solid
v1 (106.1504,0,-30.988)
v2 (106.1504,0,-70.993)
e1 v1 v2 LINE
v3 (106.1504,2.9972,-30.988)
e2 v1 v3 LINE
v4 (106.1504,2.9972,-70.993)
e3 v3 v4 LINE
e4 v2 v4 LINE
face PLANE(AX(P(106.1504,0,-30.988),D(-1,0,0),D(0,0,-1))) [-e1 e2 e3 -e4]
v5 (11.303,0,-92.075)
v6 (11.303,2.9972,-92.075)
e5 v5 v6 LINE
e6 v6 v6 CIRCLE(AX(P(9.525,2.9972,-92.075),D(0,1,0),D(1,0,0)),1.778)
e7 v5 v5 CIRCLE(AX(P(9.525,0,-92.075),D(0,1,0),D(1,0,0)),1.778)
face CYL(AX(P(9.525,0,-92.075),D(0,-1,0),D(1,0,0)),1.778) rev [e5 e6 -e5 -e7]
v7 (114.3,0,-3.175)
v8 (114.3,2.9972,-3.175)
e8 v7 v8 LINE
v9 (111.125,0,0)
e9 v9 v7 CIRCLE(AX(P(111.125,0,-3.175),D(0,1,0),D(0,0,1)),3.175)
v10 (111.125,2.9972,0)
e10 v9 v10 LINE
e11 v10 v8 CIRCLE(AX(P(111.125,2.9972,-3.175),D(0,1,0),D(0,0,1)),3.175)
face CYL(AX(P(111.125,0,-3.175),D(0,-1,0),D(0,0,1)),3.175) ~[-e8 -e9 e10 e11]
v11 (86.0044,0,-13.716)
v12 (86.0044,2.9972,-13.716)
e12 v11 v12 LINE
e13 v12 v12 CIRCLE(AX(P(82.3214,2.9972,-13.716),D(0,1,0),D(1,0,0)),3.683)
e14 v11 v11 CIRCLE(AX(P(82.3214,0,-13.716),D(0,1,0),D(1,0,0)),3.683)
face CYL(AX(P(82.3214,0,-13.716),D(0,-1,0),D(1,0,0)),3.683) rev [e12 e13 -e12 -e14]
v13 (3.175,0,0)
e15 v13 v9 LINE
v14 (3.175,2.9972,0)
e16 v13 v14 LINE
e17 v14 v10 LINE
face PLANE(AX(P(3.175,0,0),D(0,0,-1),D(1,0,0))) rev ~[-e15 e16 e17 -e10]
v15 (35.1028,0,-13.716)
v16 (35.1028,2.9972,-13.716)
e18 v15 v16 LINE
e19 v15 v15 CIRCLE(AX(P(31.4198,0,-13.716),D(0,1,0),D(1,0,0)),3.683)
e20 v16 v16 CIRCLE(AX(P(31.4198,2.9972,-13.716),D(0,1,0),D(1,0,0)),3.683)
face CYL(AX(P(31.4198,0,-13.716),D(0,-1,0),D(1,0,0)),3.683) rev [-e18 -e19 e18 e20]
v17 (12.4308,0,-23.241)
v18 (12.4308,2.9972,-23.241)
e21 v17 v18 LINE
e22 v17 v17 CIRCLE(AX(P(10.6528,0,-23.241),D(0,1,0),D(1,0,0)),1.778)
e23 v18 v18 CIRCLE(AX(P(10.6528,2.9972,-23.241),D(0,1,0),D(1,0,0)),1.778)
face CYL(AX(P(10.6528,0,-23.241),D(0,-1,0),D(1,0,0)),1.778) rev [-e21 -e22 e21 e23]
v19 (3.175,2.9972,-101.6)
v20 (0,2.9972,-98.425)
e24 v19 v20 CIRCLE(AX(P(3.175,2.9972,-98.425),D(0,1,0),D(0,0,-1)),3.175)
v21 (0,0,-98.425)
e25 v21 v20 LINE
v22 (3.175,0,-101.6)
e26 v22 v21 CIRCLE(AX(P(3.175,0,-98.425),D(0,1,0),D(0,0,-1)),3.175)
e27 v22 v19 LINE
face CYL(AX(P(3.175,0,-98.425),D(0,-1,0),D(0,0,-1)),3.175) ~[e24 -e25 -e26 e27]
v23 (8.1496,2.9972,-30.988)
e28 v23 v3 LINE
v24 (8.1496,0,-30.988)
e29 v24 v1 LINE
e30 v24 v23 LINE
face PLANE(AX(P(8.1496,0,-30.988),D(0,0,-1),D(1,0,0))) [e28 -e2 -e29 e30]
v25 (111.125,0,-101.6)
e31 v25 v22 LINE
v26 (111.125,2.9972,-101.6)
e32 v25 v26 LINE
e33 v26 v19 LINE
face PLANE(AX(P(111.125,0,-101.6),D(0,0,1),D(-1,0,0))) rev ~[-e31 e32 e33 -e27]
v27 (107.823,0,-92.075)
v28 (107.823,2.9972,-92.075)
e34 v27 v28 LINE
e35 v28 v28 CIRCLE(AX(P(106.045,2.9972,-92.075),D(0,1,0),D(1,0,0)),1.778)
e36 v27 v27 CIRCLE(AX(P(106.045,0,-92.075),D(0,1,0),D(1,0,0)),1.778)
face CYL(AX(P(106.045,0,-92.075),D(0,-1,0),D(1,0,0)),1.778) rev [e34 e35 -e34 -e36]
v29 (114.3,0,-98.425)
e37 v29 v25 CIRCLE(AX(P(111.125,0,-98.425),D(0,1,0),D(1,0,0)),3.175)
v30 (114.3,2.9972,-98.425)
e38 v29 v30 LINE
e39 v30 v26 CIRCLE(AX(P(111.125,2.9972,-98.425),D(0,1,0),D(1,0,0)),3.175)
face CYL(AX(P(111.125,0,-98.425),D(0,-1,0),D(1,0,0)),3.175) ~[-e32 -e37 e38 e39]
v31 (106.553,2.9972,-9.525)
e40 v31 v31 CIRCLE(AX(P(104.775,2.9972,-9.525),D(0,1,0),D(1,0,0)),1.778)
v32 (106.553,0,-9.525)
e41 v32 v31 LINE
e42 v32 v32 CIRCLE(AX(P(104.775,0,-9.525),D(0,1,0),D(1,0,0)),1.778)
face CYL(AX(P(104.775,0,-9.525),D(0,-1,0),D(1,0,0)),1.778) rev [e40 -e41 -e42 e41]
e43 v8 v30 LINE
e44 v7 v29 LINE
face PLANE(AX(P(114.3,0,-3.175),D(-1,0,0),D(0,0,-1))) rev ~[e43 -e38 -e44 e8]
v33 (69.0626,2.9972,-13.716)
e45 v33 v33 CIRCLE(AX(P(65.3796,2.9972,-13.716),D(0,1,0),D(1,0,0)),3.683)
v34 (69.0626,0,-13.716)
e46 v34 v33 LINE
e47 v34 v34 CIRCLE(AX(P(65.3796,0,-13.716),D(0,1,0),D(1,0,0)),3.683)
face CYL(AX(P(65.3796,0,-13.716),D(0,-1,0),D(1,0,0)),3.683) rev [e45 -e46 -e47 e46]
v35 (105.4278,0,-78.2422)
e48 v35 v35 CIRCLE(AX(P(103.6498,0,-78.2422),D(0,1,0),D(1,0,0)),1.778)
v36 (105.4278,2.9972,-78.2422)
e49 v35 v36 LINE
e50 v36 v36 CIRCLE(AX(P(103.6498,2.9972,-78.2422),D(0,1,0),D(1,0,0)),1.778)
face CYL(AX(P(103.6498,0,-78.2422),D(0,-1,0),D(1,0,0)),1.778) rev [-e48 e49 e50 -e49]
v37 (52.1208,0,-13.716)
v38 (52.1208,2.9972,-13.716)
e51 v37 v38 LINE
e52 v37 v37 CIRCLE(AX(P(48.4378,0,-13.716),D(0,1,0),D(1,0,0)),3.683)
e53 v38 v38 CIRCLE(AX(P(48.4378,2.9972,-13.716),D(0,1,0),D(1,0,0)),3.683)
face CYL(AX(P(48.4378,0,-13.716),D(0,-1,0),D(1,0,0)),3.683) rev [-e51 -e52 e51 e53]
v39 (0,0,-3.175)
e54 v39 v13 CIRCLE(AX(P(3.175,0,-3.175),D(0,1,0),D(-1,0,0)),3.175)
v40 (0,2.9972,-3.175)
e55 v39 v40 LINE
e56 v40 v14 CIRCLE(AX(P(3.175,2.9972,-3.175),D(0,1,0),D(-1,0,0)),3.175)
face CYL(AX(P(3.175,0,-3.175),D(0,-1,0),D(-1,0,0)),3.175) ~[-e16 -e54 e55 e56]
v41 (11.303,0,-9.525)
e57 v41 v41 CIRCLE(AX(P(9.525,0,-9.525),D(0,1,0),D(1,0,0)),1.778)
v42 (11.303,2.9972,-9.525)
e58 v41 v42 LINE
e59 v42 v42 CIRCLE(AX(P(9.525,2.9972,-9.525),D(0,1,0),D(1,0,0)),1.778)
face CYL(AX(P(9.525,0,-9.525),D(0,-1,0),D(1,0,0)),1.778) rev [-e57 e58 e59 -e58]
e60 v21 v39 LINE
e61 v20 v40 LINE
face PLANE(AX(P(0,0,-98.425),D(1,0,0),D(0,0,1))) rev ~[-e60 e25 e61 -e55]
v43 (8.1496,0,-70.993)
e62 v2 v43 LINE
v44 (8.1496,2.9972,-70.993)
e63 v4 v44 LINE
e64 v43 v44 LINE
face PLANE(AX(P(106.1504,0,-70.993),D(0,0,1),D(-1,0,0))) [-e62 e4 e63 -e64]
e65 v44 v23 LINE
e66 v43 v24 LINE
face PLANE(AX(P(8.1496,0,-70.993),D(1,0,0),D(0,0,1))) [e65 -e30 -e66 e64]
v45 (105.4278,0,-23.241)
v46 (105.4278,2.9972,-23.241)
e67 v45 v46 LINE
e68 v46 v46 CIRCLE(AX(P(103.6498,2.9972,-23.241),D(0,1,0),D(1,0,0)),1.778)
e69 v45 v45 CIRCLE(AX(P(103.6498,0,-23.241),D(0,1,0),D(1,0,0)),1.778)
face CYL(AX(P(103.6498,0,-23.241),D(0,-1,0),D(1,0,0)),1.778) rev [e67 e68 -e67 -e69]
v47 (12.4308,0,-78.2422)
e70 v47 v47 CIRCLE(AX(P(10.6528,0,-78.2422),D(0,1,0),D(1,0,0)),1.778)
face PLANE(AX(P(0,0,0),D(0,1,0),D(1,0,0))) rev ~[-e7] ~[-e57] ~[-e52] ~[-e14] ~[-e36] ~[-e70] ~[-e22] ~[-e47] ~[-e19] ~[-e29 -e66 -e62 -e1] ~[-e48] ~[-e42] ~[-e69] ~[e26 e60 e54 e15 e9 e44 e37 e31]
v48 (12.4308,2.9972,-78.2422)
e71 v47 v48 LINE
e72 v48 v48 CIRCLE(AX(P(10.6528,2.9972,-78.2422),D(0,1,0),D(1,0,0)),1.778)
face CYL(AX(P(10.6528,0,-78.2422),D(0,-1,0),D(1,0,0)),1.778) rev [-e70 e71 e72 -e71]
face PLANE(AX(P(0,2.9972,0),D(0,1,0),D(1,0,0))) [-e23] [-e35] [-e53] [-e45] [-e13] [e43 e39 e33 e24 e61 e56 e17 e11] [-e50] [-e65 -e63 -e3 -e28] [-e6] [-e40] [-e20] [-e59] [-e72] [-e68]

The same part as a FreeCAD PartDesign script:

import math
import FreeCAD as App
import Part
import Sketcher
from FreeCAD import Vector
Q = App.Units.Quantity


def add_polygon(sketch, points):
    """Adds a closed chain of lines whose ends are joined by coincident constraints."""
    first, n = sketch.GeometryCount, len(points)
    for a, b in zip(points, points[1:] + points[:1]):
        sketch.addGeometry(Part.LineSegment(App.Vector(*a, 0), App.Vector(*b, 0)), False)
    for i in range(n):
        sketch.addConstraint(Sketcher.Constraint("Coincident", first + i, 2, first + (i + 1) % n, 1))

doc = App.newDocument("Part")
body = doc.addObject("PartDesign::Body", "Body")

# Sketch on XZ plane
sketch1 = body.newObject("Sketcher::SketchObject", "Sketch")
sketch1.AttachmentSupport = (doc.getObject("XZ_Plane"), [""])
sketch1.MapMode = "FlatFace"
sketch1.addGeometry(Part.LineSegment(Vector(3.175, 0, 0), Vector(111.125, 0, 0)), False)  # 0
sketch1.addGeometry(Part.ArcOfCircle(Part.Circle(Vector(111.125, -3.175, 0), Vector(0, 0, 1), 3.175), math.radians(0), math.radians(90)), False)  # 1
sketch1.addGeometry(Part.LineSegment(Vector(114.3, -3.175, 0), Vector(114.3, -98.425, 0)), False)  # 2
sketch1.addGeometry(Part.ArcOfCircle(Part.Circle(Vector(111.125, -98.425, 0), Vector(0, 0, 1), 3.175), math.radians(-90), math.radians(0)), False)  # 3
sketch1.addGeometry(Part.LineSegment(Vector(111.125, -101.6, 0), Vector(3.175, -101.6, 0)), False)  # 4
sketch1.addGeometry(Part.ArcOfCircle(Part.Circle(Vector(3.175, -98.425, 0), Vector(0, 0, 1), 3.175), math.radians(180), math.radians(270)), False)  # 5
sketch1.addGeometry(Part.LineSegment(Vector(0, -98.425, 0), Vector(0, -3.175, 0)), False)  # 6
sketch1.addGeometry(Part.ArcOfCircle(Part.Circle(Vector(3.175, -3.175, 0), Vector(0, 0, 1), 3.175), math.radians(90), math.radians(180)), False)  # 7
sketch1.addGeometry(Part.Circle(Vector(9.525, -9.525, 0), Vector(0, 0, 1), 1.778), False)  # 8
sketch1.addGeometry(Part.Circle(Vector(31.4198, -13.716, 0), Vector(0, 0, 1), 3.683), False)  # 9
sketch1.addGeometry(Part.Circle(Vector(48.4378, -13.716, 0), Vector(0, 0, 1), 3.683), False)  # 10
sketch1.addGeometry(Part.Circle(Vector(65.3796, -13.716, 0), Vector(0, 0, 1), 3.683), False)  # 11
sketch1.addGeometry(Part.Circle(Vector(82.3214, -13.716, 0), Vector(0, 0, 1), 3.683), False)  # 12
sketch1.addGeometry(Part.Circle(Vector(104.775, -9.525, 0), Vector(0, 0, 1), 1.778), False)  # 13
add_polygon(sketch1, [(8.1496, -30.988), (8.1496, -70.993), (106.1504, -70.993), (106.1504, -30.988)])  # lines 14-17
sketch1.addGeometry(Part.Circle(Vector(9.525, -92.075, 0), Vector(0, 0, 1), 1.778), False)  # 18
sketch1.addGeometry(Part.Circle(Vector(106.045, -92.075, 0), Vector(0, 0, 1), 1.778), False)  # 19
sketch1.addGeometry(Part.Circle(Vector(103.6498, -23.241, 0), Vector(0, 0, 1), 1.778), False)  # 20
sketch1.addGeometry(Part.Circle(Vector(10.6528, -23.241, 0), Vector(0, 0, 1), 1.778), False)  # 21
sketch1.addGeometry(Part.Circle(Vector(10.6528, -78.2422, 0), Vector(0, 0, 1), 1.778), False)  # 22
sketch1.addGeometry(Part.Circle(Vector(103.6498, -78.2422, 0), Vector(0, 0, 1), 1.778), False)  # 23
sketch1.addConstraint([
    Sketcher.Constraint("Tangent", 0, 2, 1, 2),
    Sketcher.Constraint("Tangent", 1, 1, 2, 1),
    Sketcher.Constraint("Tangent", 2, 2, 3, 2),
    Sketcher.Constraint("Tangent", 3, 1, 4, 1),
    Sketcher.Constraint("Tangent", 4, 2, 5, 2),
    Sketcher.Constraint("Tangent", 5, 1, 6, 1),
    Sketcher.Constraint("Tangent", 6, 2, 7, 2),
    Sketcher.Constraint("Tangent", 7, 1, 0, 1),
    Sketcher.Constraint("Horizontal", 0),
    Sketcher.Constraint("Vertical", 2),
    Sketcher.Constraint("Horizontal", 4),
    Sketcher.Constraint("Vertical", 6),
    Sketcher.Constraint("Vertical", 14),
    Sketcher.Constraint("Horizontal", 15),
    Sketcher.Constraint("Vertical", 16),
    Sketcher.Constraint("Horizontal", 17),
    Sketcher.Constraint("Equal", 1, 3),
    Sketcher.Constraint("Equal", 3, 5),
    Sketcher.Constraint("Equal", 5, 7),
    Sketcher.Constraint("Equal", 9, 10),
    Sketcher.Constraint("Equal", 10, 11),
    Sketcher.Constraint("Equal", 11, 12),
    Sketcher.Constraint("Equal", 8, 13),
    Sketcher.Constraint("Equal", 13, 18),
    Sketcher.Constraint("Equal", 18, 19),
    Sketcher.Constraint("Equal", 19, 20),
    Sketcher.Constraint("Equal", 20, 21),
    Sketcher.Constraint("Equal", 21, 22),
    Sketcher.Constraint("Equal", 22, 23),
    Sketcher.Constraint("PointOnObject", 0, 2, -1),
    Sketcher.Constraint("PointOnObject", 5, 1, -2),
    Sketcher.Constraint("Horizontal", 9, 3, 10, 3),
    Sketcher.Constraint("Horizontal", 10, 3, 11, 3),
    Sketcher.Constraint("Horizontal", 11, 3, 12, 3),
    Sketcher.Constraint("Horizontal", 8, 3, 13, 3),
    Sketcher.Constraint("Horizontal", 18, 3, 19, 3),
    Sketcher.Constraint("Horizontal", 20, 3, 21, 3),
    Sketcher.Constraint("Horizontal", 22, 3, 23, 3),
    Sketcher.Constraint("Vertical", 8, 3, 18, 3),
    Sketcher.Constraint("Vertical", 21, 3, 22, 3),
    Sketcher.Constraint("Vertical", 20, 3, 23, 3),
    Sketcher.Constraint("Diameter", 8, Q("0.14 in")),
    Sketcher.Constraint("Diameter", 9, Q("0.29 in")),
    Sketcher.Constraint("DistanceY", 3, 1, -1, 1, Q("4 in")),
    Sketcher.Constraint("Radius", 1, Q("0.125 in")),
    Sketcher.Constraint("DistanceX", 8, 3, 1, 3, Q("4 in")),
    Sketcher.Constraint("DistanceX", 0, 1, 0, 2, Q("4.25 in")),
    Sketcher.Constraint("DistanceY", 5, 3, 8, 3, Q("3.5 in")),
    Sketcher.Constraint("DistanceY", 18, 3, 7, 3, Q("3.5 in")),
    Sketcher.Constraint("DistanceX", 19, 3, 3, 3, Q("0.2 in")),
    Sketcher.Constraint("DistanceY", 14, 2, 14, 1, Q("1.575 in")),
    Sketcher.Constraint("DistanceY", 9, 3, -1, 1, Q("0.54 in")),
    Sketcher.Constraint("DistanceY", 16, 2, -1, 1, Q("1.22 in")),
    Sketcher.Constraint("DistanceX", 9, 3, 10, 3, Q("0.67 in")),
    Sketcher.Constraint("DistanceX", 13, 3, 1, 3, Q("0.25 in")),
    Sketcher.Constraint("DistanceY", 20, 3, 13, 3, Q("0.54 in")),
    Sketcher.Constraint("DistanceX", 15, 1, 15, 2, Q("3.8583 in")),
    Sketcher.Constraint("DistanceX", -1, 1, 9, 3, Q("1.237 in")),
    Sketcher.Constraint("DistanceX", -1, 1, 11, 3, Q("2.574 in")),
    Sketcher.Constraint("DistanceX", -1, 1, 12, 3, Q("3.241 in")),
    Sketcher.Constraint("DistanceX", -1, 1, 20, 3, Q("4.0807 in")),
    Sketcher.Constraint("DistanceX", -1, 1, 21, 3, Q("0.4194 in")),
    Sketcher.Constraint("DistanceY", 22, 3, -1, 1, Q("3.0804 in")),
    Sketcher.Constraint("DistanceX", -1, 1, 14, 2, 8.1496),
])
pad1 = body.newObject("PartDesign::Pad", "Pad")
pad1.Profile = sketch1
pad1.Length = Q("0.118 in")
pad1.Reversed = True

doc.recompute()
